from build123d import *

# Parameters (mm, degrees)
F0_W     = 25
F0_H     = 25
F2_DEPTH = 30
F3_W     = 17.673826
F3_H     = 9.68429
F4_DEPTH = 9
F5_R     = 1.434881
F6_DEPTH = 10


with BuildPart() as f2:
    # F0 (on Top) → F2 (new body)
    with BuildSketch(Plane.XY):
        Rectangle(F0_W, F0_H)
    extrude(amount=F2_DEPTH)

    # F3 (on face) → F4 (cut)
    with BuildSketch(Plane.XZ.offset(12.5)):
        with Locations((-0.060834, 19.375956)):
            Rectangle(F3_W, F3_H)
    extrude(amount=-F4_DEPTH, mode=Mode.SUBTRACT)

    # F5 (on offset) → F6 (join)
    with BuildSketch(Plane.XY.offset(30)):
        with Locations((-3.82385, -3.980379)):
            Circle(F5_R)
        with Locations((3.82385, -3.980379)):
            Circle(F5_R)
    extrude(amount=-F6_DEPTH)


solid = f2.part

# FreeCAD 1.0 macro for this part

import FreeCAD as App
import Part
import Sketcher
from FreeCAD import Vector

doc = App.newDocument("Part")
body = doc.addObject("PartDesign::Body", "Body")

# Sketch on XY plane
sketch1 = body.newObject("Sketcher::SketchObject", "Sketch")
sketch1.AttachmentSupport = (doc.getObject("XY_Plane"), [""])
sketch1.MapMode = "FlatFace"
sketch1.addGeometry([
    Part.LineSegment(Vector(-12, 12, 0), Vector(-12, -12, 0)),
    Part.LineSegment(Vector(-12, -12, 0), Vector(12, -12, 0)),
    Part.LineSegment(Vector(12, -12, 0), Vector(12, 12, 0)),
    Part.LineSegment(Vector(12, 12, 0), Vector(-12, 12, 0)),
], False)
sketch1.addConstraint([
    Sketcher.Constraint("Coincident", 0, 2, 1, 1),
    Sketcher.Constraint("Coincident", 1, 2, 2, 1),
    Sketcher.Constraint("Coincident", 2, 2, 3, 1),
    Sketcher.Constraint("Coincident", 3, 2, 0, 1),
    Sketcher.Constraint("Vertical", 0),
    Sketcher.Constraint("Horizontal", 1),
    Sketcher.Constraint("Vertical", 2),
    Sketcher.Constraint("Horizontal", 3),
    Sketcher.Constraint("Symmetric", 0, 2, 2, 2, -1, 1),
    Sketcher.Constraint("Equal", 3, 0),
    Sketcher.Constraint("DistanceX", 1, 1, 1, 2, 25.0),
])
pad1 = body.newObject("PartDesign::Pad", "Pad")
pad1.Profile = sketch1
pad1.Length = 30

# Sketch on XZ plane
sketch2 = body.newObject("Sketcher::SketchObject", "Sketch001")
sketch2.AttachmentSupport = (doc.getObject("XZ_Plane"), [""])
sketch2.MapMode = "FlatFace"
sketch2.AttachmentOffset = App.Placement(Vector(0, 0, 12.5), App.Rotation())
sketch2.addGeometry([
    Part.LineSegment(Vector(-9, 24, 0), Vector(-9, 15, 0)),
    Part.LineSegment(Vector(-9, 15, 0), Vector(9, 15, 0)),
    Part.LineSegment(Vector(9, 15, 0), Vector(9, 24, 0)),
    Part.LineSegment(Vector(9, 24, 0), Vector(-9, 24, 0)),
], False)
sketch2.addConstraint([
    Sketcher.Constraint("Coincident", 0, 2, 1, 1),
    Sketcher.Constraint("Coincident", 1, 2, 2, 1),
    Sketcher.Constraint("Coincident", 2, 2, 3, 1),
    Sketcher.Constraint("Coincident", 3, 2, 0, 1),
    Sketcher.Constraint("Vertical", 0),
    Sketcher.Constraint("Horizontal", 1),
    Sketcher.Constraint("Vertical", 2),
    Sketcher.Constraint("Horizontal", 3),
    Sketcher.Constraint("DistanceY", 0, 2, 0, 1, 9.68429),
    Sketcher.Constraint("DistanceY", -1, 1, 2, 2, 24.218101),
    Sketcher.Constraint("DistanceX", 1, 1, 1, 2, 17.673826),
    Sketcher.Constraint("DistanceX", -1, 1, 1, 2, 8.776079),
])
pocket1 = body.newObject("PartDesign::Pocket", "Pocket")
pocket1.Profile = sketch2
pocket1.Length = 9

# Sketch on XY plane
sketch3 = body.newObject("Sketcher::SketchObject", "Sketch002")
sketch3.AttachmentSupport = (doc.getObject("XY_Plane"), [""])
sketch3.MapMode = "FlatFace"
sketch3.AttachmentOffset = App.Placement(Vector(0, 0, 30), App.Rotation())
sketch3.addGeometry([
    Part.Circle(Vector(-3.8, -4, 0), Vector(0, 0, 1), 1.4),
    Part.Circle(Vector(3.8, -4, 0), Vector(0, 0, 1), 1.4),
], False)
sketch3.addConstraint([
    Sketcher.Constraint("Equal", 0, 1),
    Sketcher.Constraint("Symmetric", 0, 3, 1, 3, -2),
    Sketcher.Constraint("Diameter", 0, 2.869762),
    Sketcher.Constraint("DistanceX", 0, 3, 1, 3, 7.6477),
    Sketcher.Constraint("DistanceY", 0, 3, -1, 1, 3.980379),
])
pad2 = body.newObject("PartDesign::Pad", "Pad001")
pad2.Profile = sketch3
pad2.Length = 10
pad2.Reversed = True

doc.recompute()
